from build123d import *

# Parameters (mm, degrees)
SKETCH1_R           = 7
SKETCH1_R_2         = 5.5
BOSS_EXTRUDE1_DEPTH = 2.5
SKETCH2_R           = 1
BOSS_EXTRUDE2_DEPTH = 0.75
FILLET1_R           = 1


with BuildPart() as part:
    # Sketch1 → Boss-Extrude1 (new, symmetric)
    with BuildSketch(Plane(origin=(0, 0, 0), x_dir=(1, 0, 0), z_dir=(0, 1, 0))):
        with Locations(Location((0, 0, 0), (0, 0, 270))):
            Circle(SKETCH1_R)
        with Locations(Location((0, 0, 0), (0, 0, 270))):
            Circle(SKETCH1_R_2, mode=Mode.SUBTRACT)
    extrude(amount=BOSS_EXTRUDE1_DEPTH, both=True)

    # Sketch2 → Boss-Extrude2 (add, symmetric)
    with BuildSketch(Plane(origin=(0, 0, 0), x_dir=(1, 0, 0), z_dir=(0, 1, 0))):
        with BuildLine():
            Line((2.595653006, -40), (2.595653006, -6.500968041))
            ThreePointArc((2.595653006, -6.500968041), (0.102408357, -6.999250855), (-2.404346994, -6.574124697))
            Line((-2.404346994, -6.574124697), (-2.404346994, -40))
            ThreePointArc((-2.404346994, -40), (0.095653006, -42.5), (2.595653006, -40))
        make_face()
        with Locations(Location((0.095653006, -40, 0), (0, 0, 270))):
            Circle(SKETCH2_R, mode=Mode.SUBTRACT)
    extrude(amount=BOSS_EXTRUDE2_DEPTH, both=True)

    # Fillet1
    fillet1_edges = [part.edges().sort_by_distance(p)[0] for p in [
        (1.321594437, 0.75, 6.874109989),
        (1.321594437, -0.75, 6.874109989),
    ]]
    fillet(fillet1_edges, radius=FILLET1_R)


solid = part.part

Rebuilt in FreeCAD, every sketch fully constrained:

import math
import FreeCAD as App
import Part
import Sketcher

V = App.Vector


def edges_at(feature, points):
    """Names of the edges that pass closest to the given points."""
    edges = feature.Shape.Edges
    near = lambda p: min(range(len(edges)), key=lambda i: edges[i].distToShape(Part.Vertex(*p))[0])
    return sorted({f"Edge{near(p) + 1}" for p in points})

doc = App.newDocument("Part")
params = doc.addObject("Spreadsheet::Sheet", "Params")
for row, (alias, value) in enumerate([
    ("sketch1_diameter", "14 mm"),
    ("sketch1_diameter2", "11 mm"),
    ("pad1_length", "5 mm"),
    ("sketch2_diameter", "2 mm"),
    ("sketch2_radius", "7 mm"),
    ("sketch2_radius2", "2.5 mm"),
    ("pad2_length", "1.5 mm"),
    ("fillet_radius", "1 mm"),
], start=1):
    params.set(f"A{row}", alias)
    params.set(f"B{row}", "=" + value)
    params.setAlias(f"B{row}", alias)

body = doc.addObject("PartDesign::Body", "Body")

# Sketch on XZ plane
sketch1 = doc.addObject("Sketcher::SketchObject", "Sketch")
body.addObject(sketch1)
sketch1.AttachmentSupport = (doc.XZ_Plane, [""])
sketch1.MapMode = "FlatFace"
sketch1.addGeometry(Part.Circle(V(0, 0, 0), V(0, 0, 1), 7), False)
sketch1.addGeometry(Part.Circle(V(0, 0, 0), V(0, 0, 1), 6), False)
sketch1.addConstraint(Sketcher.Constraint("Coincident", 0, 3, -1, 1))
sketch1.addConstraint(Sketcher.Constraint("Coincident", 1, 3, -1, 1))
sketch1.addConstraint(Sketcher.Constraint("Diameter", 0, 14.0))
sketch1.addConstraint(Sketcher.Constraint("Diameter", 1, 11.0))
sketch1.setExpression("Constraints[2]", "Params.sketch1_diameter")
sketch1.setExpression("Constraints[3]", "Params.sketch1_diameter2")
pad1 = doc.addObject("PartDesign::Pad", "Pad")
body.addObject(pad1)
pad1.Profile = sketch1
pad1.setExpression("Length", "Params.pad1_length")
pad1.Midplane = True

# Sketch on XZ plane
sketch2 = doc.addObject("Sketcher::SketchObject", "Sketch001")
body.addObject(sketch2)
sketch2.AttachmentSupport = (doc.XZ_Plane, [""])
sketch2.MapMode = "FlatFace"
sketch2.addGeometry(Part.LineSegment(V(2.6, 40, 0), V(2.6, 6.5, 0)), False)
sketch2.addGeometry(Part.ArcOfCircle(Part.Circle(V(0, 0, 0), V(0, 0, 1), 7), math.radians(68), math.radians(110)), False)
sketch2.addGeometry(Part.LineSegment(V(-2.4, 6.6, 0), V(-2.4, 40, 0)), False)
sketch2.addGeometry(Part.ArcOfCircle(Part.Circle(V(0.1, 40, 0), V(0, 0, 1), 2.5), math.radians(0), math.radians(180)), False)
sketch2.addGeometry(Part.Circle(V(0.1, 40, 0), V(0, 0, 1), 1), False)
sketch2.addConstraint(Sketcher.Constraint("Coincident", 0, 2, 1, 1))
sketch2.addConstraint(Sketcher.Constraint("Coincident", 1, 2, 2, 1))
sketch2.addConstraint(Sketcher.Constraint("Tangent", 2, 2, 3, 2))
sketch2.addConstraint(Sketcher.Constraint("Tangent", 3, 1, 0, 1))
sketch2.addConstraint(Sketcher.Constraint("Vertical", 0))
sketch2.addConstraint(Sketcher.Constraint("Vertical", 2))
sketch2.addConstraint(Sketcher.Constraint("Coincident", 1, 3, -1, 1))
sketch2.addConstraint(Sketcher.Constraint("Coincident", 4, 3, 3, 3))
sketch2.addConstraint(Sketcher.Constraint("Diameter", 4, 2.0))
sketch2.addConstraint(Sketcher.Constraint("Radius", 1, 7.0))
sketch2.addConstraint(Sketcher.Constraint("Radius", 3, 2.5))
sketch2.addConstraint(Sketcher.Constraint("DistanceY", -1, 1, 3, 3, 40.0))
sketch2.addConstraint(Sketcher.Constraint("DistanceY", 0, 2, 0, 1, 33.499032))
sketch2.setExpression("Constraints[8]", "Params.sketch2_diameter")
sketch2.setExpression("Constraints[9]", "Params.sketch2_radius")
sketch2.setExpression("Constraints[10]", "Params.sketch2_radius2")
pad2 = doc.addObject("PartDesign::Pad", "Pad001")
body.addObject(pad2)
pad2.Profile = sketch2
pad2.setExpression("Length", "Params.pad2_length")
pad2.Midplane = True
doc.recompute()

fillet = doc.addObject("PartDesign::Fillet", "Fillet")
body.addObject(fillet)
fillet.Base = (pad2, edges_at(pad2, [(1.322, 0.75, 6.874), (1.322, -0.75, 6.874)]))
fillet.setExpression("Radius", "Params.fillet_radius")

doc.recompute()
